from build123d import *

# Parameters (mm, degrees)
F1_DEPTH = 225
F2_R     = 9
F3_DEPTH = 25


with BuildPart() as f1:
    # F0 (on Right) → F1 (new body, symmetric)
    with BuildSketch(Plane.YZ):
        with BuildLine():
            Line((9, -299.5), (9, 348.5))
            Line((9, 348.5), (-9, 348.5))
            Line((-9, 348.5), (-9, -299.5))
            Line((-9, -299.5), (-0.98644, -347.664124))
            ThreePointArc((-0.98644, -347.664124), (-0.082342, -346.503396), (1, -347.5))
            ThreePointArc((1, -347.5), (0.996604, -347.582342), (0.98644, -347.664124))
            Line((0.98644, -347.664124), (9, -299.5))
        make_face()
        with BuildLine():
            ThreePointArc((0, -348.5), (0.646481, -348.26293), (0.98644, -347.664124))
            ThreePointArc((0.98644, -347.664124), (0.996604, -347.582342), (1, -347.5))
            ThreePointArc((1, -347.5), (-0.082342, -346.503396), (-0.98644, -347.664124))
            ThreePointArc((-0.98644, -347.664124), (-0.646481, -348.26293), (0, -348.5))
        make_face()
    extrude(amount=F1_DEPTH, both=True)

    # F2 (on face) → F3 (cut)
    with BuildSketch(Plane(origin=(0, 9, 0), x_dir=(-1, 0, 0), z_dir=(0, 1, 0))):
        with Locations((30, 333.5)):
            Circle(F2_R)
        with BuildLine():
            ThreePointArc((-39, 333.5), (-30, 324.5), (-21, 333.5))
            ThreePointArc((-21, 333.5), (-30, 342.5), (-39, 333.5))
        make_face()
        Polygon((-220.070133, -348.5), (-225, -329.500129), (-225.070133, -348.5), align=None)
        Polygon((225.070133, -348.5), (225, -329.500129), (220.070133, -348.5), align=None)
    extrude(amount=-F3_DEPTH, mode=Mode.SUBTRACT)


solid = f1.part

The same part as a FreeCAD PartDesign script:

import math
import FreeCAD as App
import Part
import Sketcher
from FreeCAD import Vector
Q = App.Units.Quantity


def add_polygon(sketch, points):
    """Adds a closed chain of lines whose ends are joined by coincident constraints."""
    first, n = sketch.GeometryCount, len(points)
    for a, b in zip(points, points[1:] + points[:1]):
        sketch.addGeometry(Part.LineSegment(App.Vector(*a, 0), App.Vector(*b, 0)), False)
    for i in range(n):
        sketch.addConstraint(Sketcher.Constraint("Coincident", first + i, 2, first + (i + 1) % n, 1))

doc = App.newDocument("Part")
params = doc.addObject("Spreadsheet::Sheet", "Params")
for row, (alias, value) in enumerate([
    ("sketch1_radius", "1.000001 mm"),
    ("sketch1_width", "18 mm"),
    ("sketch1_height", "648 mm"),
    ("pad1_length", "450 mm"),
    ("sketch2_diameter", "18 mm"),
    ("sketch2_width", "5 mm"),
    ("sketch2_length", "19 mm"),
    ("pocket1_length", "25 mm"),
], start=1):
    params.set(f"A{row}", alias)
    params.set(f"B{row}", "=" + value)
    params.setAlias(f"B{row}", alias)

body = doc.addObject("PartDesign::Body", "Body")

sketch1 = body.newObject("Sketcher::SketchObject", "Sketch")
sketch1.AttachmentSupport = (doc.getObject("YZ_Plane"), [""])
sketch1.MapMode = "FlatFace"
sketch1.addGeometry([
    Part.LineSegment(Vector(9, -299.5, 0), Vector(9, 348.5, 0)),
    Part.LineSegment(Vector(9, 348.5, 0), Vector(-9, 348.5, 0)),
    Part.LineSegment(Vector(-9, 348.5, 0), Vector(-9, -299.5, 0)),
    Part.LineSegment(Vector(-9, -299.5, 0), Vector(-1, -347.7, 0)),
    Part.ArcOfCircle(Part.Circle(Vector(0, -347.5, 0), Vector(0, 0, 1), 1), math.radians(-171), math.radians(-90)),
    Part.ArcOfCircle(Part.Circle(Vector(0, -347.5, 0), Vector(0, 0, 1), 1), math.radians(-90), math.radians(-9)),
    Part.LineSegment(Vector(1, -347.7, 0), Vector(9, -299.5, 0)),
], False)
sketch1.addConstraint([
    Sketcher.Constraint("Coincident", 0, 2, 1, 1),
    Sketcher.Constraint("Coincident", 1, 2, 2, 1),
    Sketcher.Constraint("Coincident", 2, 2, 3, 1),
    Sketcher.Constraint("Tangent", 3, 2, 4, 1),
    Sketcher.Constraint("Tangent", 4, 2, 5, 1),
    Sketcher.Constraint("Tangent", 5, 2, 6, 1),
    Sketcher.Constraint("Coincident", 6, 2, 0, 1),
    Sketcher.Constraint("Vertical", 0),
    Sketcher.Constraint("Horizontal", 1),
    Sketcher.Constraint("Vertical", 2),
    Sketcher.Constraint("Equal", 4, 5),
    Sketcher.Constraint("Symmetric", 3, 2, 5, 2, -2),
    Sketcher.Constraint("PointOnObject", 4, 2, -2),
    Sketcher.Constraint("Horizontal", 2, 2, 6, 2),
    Sketcher.Constraint("Radius", 4, Q("1.000001 mm")),
    Sketcher.Constraint("DistanceX", 1, 2, 1, 1, Q("18 mm")),
    Sketcher.Constraint("DistanceY", 0, 1, 0, 2, Q("648 mm")),
    Sketcher.Constraint("DistanceY", 4, 3, 0, 2, Q("695.999999 mm")),
    Sketcher.Constraint("DistanceY", 4, 3, -1, 1, Q("347.499999 mm")),
])
sketch1.setExpression("Constraints[14]", "Params.sketch1_radius")
sketch1.setExpression("Constraints[15]", "Params.sketch1_width")
sketch1.setExpression("Constraints[16]", "Params.sketch1_height")
pad1 = body.newObject("PartDesign::Pad", "Pad")
pad1.Profile = sketch1
pad1.setExpression("Length", "Params.pad1_length")
pad1.Midplane = True

sketch2 = body.newObject("Sketcher::SketchObject", "Sketch001")
sketch2.AttachmentSupport = (doc.getObject("XZ_Plane"), [""])
sketch2.MapMode = "FlatFace"
sketch2.AttachmentOffset = App.Placement(Vector(0, 0, -9), App.Rotation())
sketch2.addGeometry(Part.Circle(Vector(-30, 334, 0), Vector(0, 0, 1), 9), False)
sketch2.addGeometry(Part.Circle(Vector(30, 334, 0), Vector(0, 0, 1), 9), False)
add_polygon(sketch2, [(220, -348), (225, -330), (225, -348)])
add_polygon(sketch2, [(-225, -348), (-225, -330), (-220, -348)])
sketch2.addConstraint([
    Sketcher.Constraint("Horizontal", 4),
    Sketcher.Constraint("Horizontal", 7),
    Sketcher.Constraint("Equal", 0, 1),
    Sketcher.Constraint("Symmetric", 0, 3, 1, 3, -2),
    Sketcher.Constraint("Symmetric", 2, 2, 5, 2, -2),
    Sketcher.Constraint("Symmetric", 4, 2, 6, 2, -2),
    Sketcher.Constraint("Equal", 4, 7),
    Sketcher.Constraint("Diameter", 0, Q("18 mm")),
    Sketcher.Constraint("DistanceX", 4, 2, 4, 1, Q("5 mm")),
    Sketcher.Constraint("Distance", 3, Q("19 mm")),
    Sketcher.Constraint("DistanceX", 0, 3, -1, 1, Q("30 mm")),
    Sketcher.Constraint("DistanceX", -1, 1, 2, 2, Q("225 mm")),
    Sketcher.Constraint("DistanceY", 3, 2, 1, 3, Q("682 mm")),
    Sketcher.Constraint("DistanceY", -1, 1, 0, 3, Q("333.5 mm")),
    Sketcher.Constraint("Distance", 2, Q("19.629027 mm")),
])
sketch2.setExpression("Constraints[13]", "Params.sketch2_diameter")
sketch2.setExpression("Constraints[14]", "Params.sketch2_width")
sketch2.setExpression("Constraints[15]", "Params.sketch2_length")
pocket1 = body.newObject("PartDesign::Pocket", "Pocket")
pocket1.Profile = sketch2
pocket1.setExpression("Length", "Params.pocket1_length")
pocket1.Reversed = True

doc.recompute()
